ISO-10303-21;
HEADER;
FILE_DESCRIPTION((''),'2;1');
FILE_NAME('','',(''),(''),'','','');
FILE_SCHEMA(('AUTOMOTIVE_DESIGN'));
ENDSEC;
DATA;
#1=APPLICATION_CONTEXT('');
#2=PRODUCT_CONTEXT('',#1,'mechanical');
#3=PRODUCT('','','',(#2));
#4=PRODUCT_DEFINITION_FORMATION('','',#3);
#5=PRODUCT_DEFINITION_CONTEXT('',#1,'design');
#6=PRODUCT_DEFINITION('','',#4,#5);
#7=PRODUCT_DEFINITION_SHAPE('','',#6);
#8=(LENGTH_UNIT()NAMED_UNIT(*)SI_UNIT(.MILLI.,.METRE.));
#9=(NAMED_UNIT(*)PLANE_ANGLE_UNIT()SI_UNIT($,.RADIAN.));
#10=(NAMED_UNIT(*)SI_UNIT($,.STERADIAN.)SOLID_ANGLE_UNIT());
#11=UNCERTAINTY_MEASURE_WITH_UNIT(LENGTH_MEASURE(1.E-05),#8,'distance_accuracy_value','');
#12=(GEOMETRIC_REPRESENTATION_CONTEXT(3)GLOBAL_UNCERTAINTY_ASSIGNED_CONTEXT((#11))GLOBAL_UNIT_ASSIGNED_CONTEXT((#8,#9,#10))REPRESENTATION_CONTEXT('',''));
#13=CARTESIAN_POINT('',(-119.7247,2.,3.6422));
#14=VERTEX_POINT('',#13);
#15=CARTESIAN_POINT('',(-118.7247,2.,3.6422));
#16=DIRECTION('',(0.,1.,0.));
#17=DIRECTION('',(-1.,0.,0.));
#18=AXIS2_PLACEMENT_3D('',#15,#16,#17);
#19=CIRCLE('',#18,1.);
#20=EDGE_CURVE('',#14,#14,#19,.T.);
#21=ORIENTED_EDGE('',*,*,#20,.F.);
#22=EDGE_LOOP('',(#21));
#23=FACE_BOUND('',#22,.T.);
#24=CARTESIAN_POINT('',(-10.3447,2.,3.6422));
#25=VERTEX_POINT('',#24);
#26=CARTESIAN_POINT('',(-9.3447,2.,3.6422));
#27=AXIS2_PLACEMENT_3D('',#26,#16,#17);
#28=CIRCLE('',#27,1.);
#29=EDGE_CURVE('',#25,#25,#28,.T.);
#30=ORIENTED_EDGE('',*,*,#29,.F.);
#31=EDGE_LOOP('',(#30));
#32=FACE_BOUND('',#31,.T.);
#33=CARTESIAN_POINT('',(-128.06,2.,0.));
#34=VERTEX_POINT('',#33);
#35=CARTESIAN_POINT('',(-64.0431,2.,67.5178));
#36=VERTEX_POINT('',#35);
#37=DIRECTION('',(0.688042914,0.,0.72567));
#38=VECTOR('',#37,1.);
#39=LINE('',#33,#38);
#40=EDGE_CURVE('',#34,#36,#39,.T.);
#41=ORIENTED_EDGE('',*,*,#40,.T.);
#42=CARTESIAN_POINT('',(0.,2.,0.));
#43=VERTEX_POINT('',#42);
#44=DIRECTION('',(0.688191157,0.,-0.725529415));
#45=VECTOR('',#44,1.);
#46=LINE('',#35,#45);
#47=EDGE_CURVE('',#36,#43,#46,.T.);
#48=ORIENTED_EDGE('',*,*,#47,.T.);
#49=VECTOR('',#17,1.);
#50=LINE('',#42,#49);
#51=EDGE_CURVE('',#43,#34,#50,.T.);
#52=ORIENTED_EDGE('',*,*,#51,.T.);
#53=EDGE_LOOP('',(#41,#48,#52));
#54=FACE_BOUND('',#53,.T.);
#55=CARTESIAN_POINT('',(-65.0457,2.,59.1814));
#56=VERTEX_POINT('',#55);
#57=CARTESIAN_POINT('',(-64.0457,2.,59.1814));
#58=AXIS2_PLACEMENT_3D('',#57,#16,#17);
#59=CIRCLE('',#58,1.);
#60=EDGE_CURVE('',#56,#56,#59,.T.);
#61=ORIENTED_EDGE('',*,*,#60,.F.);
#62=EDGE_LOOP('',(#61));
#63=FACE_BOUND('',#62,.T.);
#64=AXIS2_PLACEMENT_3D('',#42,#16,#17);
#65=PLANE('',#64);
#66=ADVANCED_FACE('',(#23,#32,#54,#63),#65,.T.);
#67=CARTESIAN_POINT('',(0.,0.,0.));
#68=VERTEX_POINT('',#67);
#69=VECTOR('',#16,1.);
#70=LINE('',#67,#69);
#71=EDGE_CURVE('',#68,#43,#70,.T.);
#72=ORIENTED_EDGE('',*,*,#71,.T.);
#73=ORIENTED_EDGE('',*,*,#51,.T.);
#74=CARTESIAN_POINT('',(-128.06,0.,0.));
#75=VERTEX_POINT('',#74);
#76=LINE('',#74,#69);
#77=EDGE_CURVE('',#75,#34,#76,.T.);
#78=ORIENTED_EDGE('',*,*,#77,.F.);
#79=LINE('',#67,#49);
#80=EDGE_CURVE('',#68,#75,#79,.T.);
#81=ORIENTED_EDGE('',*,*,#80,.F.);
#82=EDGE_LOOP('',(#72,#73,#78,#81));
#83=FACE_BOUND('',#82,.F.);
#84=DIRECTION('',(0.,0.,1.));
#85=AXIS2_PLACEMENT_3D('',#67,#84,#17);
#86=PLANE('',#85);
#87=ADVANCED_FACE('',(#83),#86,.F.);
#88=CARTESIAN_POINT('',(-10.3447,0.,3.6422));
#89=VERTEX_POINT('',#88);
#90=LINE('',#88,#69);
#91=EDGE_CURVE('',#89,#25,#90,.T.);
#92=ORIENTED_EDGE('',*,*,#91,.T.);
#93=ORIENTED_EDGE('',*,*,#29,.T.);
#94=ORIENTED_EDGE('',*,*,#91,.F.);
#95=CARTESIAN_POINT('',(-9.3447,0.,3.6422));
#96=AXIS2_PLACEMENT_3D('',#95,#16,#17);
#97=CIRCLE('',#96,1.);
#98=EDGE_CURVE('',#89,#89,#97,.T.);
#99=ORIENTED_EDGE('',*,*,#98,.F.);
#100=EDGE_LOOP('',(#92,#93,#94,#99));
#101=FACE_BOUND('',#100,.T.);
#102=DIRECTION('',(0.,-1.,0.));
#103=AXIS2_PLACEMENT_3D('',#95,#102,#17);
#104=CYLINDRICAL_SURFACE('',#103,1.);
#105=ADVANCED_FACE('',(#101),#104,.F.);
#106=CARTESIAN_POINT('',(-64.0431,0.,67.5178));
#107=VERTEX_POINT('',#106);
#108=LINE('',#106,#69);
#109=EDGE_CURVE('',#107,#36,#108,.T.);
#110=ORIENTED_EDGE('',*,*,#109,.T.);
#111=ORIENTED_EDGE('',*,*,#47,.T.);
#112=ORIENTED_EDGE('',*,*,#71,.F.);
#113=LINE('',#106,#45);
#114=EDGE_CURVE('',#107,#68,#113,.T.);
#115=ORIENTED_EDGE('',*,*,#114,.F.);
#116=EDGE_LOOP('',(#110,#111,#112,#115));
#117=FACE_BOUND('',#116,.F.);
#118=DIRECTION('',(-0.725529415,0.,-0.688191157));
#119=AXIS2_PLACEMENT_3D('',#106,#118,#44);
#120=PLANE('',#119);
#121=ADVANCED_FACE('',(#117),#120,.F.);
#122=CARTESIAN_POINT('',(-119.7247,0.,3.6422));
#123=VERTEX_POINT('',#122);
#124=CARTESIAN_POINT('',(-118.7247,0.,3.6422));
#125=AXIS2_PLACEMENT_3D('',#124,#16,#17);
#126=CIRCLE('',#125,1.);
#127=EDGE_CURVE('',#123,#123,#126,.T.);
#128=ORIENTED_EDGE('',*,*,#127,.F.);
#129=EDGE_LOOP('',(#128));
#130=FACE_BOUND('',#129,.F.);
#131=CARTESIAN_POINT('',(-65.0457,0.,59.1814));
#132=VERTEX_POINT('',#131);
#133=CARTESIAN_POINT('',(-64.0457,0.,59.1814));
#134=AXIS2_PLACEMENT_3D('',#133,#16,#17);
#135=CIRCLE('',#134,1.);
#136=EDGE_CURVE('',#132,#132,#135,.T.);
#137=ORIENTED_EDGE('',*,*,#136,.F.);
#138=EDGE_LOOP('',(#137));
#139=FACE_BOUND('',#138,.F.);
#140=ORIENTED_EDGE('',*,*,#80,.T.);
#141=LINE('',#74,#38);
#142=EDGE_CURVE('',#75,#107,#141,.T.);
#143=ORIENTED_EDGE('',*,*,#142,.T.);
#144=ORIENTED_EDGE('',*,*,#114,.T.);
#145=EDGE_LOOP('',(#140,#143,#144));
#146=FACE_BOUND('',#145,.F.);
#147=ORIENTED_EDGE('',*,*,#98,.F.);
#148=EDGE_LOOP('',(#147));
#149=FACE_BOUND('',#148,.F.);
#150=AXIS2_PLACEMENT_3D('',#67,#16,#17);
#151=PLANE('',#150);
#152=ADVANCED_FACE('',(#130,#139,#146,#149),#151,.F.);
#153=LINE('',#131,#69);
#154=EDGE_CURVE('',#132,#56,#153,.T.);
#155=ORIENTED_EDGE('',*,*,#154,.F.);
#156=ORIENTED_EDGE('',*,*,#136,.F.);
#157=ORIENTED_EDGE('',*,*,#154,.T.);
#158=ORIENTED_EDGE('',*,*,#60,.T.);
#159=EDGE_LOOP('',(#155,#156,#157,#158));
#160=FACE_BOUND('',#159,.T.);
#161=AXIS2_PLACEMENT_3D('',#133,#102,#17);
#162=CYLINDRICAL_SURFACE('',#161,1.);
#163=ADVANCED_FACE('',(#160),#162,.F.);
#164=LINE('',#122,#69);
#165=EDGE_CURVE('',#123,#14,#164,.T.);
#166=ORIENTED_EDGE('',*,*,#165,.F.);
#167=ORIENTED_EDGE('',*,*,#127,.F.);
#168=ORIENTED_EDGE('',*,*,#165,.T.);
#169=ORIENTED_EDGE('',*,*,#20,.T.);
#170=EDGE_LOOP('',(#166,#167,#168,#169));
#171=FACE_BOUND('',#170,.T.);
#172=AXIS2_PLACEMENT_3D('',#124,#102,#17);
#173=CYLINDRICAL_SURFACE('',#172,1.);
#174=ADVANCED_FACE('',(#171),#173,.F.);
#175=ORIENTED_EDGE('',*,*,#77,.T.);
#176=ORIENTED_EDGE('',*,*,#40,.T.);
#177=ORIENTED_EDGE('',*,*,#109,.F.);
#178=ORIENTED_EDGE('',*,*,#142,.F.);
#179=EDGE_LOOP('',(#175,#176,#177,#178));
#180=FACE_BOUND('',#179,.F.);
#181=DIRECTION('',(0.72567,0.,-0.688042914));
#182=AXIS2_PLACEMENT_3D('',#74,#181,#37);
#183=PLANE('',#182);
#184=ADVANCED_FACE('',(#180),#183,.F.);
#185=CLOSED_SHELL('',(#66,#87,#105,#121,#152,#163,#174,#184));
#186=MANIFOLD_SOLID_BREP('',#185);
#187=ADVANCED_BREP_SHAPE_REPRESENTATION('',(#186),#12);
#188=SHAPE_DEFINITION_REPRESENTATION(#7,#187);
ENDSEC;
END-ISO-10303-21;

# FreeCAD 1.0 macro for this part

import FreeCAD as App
import Part
import Sketcher

V = App.Vector
Q = App.Units.Quantity

doc = App.newDocument("Part")
body = doc.addObject("PartDesign::Body", "Body")

# Sketch on XZ plane
sketch1 = doc.addObject("Sketcher::SketchObject", "Sketch")
body.addObject(sketch1)
sketch1.AttachmentSupport = (doc.XZ_Plane, [""])
sketch1.MapMode = "FlatFace"
sketch1.addGeometry(Part.LineSegment(V(-64, 67.5, 0), V(0, 0, 0)), False)
sketch1.addGeometry(Part.LineSegment(V(0, 0, 0), V(-128.1, 0, 0)), False)
sketch1.addGeometry(Part.LineSegment(V(-128.1, 0, 0), V(-64, 67.5, 0)), False)
sketch1.addGeometry(Part.Circle(V(-9.3, 3.6, 0), V(0, 0, 1), 1), False)
sketch1.addGeometry(Part.Circle(V(-118.7, 3.6, 0), V(0, 0, 1), 1), False)
sketch1.addGeometry(Part.Circle(V(-64, 59.2, 0), V(0, 0, 1), 1), False)
sketch1.addConstraint(Sketcher.Constraint("Coincident", 0, 2, 1, 1))
sketch1.addConstraint(Sketcher.Constraint("Coincident", 1, 2, 2, 1))
sketch1.addConstraint(Sketcher.Constraint("Coincident", 2, 2, 0, 1))
sketch1.addConstraint(Sketcher.Constraint("Horizontal", 1))
sketch1.addConstraint(Sketcher.Constraint("Coincident", 0, 2, -1, 1))
sketch1.addConstraint(Sketcher.Constraint("Equal", 3, 4))
sketch1.addConstraint(Sketcher.Constraint("Equal", 4, 5))
sketch1.addConstraint(Sketcher.Constraint("Horizontal", 3, 3, 4, 3))
sketch1.addConstraint(Sketcher.Constraint("Diameter", 3, Q("2 mm")))
sketch1.addConstraint(Sketcher.Constraint("DistanceX", 1, 2, 1, 1, Q("128.06 mm")))
sketch1.addConstraint(Sketcher.Constraint("Distance", 0, Q("93.06 mm")))
sketch1.addConstraint(Sketcher.Constraint("DistanceX", 4, 3, 3, 3, Q("109.38 mm")))
sketch1.addConstraint(Sketcher.Constraint("Distance", 2, Q("93.042 mm")))
sketch1.addConstraint(Sketcher.Constraint("DistanceX", 4, 3, 5, 3, Q("54.679 mm")))
sketch1.addConstraint(Sketcher.Constraint("DistanceX", 3, 3, -1, 1, Q("9.3447 mm")))
sketch1.addConstraint(Sketcher.Constraint("DistanceY", -1, 1, 3, 3, Q("3.6422 mm")))
sketch1.addConstraint(Sketcher.Constraint("DistanceY", -1, 1, 5, 3, Q("59.1814 mm")))
pad1 = doc.addObject("PartDesign::Pad", "Pad")
body.addObject(pad1)
pad1.Profile = sketch1
pad1.Length = 2
pad1.Reversed = True

doc.recompute()
